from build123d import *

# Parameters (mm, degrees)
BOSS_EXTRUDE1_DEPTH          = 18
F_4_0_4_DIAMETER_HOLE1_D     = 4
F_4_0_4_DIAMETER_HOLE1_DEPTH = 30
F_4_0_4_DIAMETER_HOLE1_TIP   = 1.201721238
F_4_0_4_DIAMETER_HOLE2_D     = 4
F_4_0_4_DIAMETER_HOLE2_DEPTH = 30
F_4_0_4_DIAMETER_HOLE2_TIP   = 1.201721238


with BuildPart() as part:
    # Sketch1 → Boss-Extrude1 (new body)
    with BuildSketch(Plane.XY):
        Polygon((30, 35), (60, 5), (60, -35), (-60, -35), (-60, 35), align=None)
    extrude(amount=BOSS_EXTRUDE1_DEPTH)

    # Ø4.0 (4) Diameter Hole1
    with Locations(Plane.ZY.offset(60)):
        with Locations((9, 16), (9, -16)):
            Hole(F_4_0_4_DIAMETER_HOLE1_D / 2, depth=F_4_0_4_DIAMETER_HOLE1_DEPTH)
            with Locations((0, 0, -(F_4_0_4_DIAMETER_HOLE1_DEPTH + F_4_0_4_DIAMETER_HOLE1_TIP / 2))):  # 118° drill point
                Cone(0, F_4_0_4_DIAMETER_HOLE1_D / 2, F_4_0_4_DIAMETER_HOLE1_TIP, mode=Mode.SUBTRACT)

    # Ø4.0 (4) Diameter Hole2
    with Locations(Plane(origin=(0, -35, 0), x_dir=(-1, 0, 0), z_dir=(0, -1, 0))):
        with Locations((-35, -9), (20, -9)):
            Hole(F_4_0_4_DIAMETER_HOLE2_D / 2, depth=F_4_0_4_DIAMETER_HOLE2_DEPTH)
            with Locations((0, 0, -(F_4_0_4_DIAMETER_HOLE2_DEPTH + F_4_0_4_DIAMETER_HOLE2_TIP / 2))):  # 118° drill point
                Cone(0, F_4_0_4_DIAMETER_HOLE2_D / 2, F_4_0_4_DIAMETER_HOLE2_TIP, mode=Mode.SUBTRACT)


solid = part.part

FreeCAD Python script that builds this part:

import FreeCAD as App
import Part
import Sketcher


def add_polygon(sketch, points):
    """Adds a closed chain of lines whose ends are joined by coincident constraints."""
    first, n = sketch.GeometryCount, len(points)
    for a, b in zip(points, points[1:] + points[:1]):
        sketch.addGeometry(Part.LineSegment(App.Vector(*a, 0), App.Vector(*b, 0)), False)
    for i in range(n):
        sketch.addConstraint(Sketcher.Constraint("Coincident", first + i, 2, first + (i + 1) % n, 1))

doc = App.newDocument("Part")
body = doc.addObject("PartDesign::Body", "Body")

# Sketch on XY plane
sketch1 = doc.addObject("Sketcher::SketchObject", "Sketch")
body.addObject(sketch1)
sketch1.AttachmentSupport = (doc.XY_Plane, [""])
sketch1.MapMode = "FlatFace"
add_polygon(sketch1, [(60, 5), (30, 35), (-60, 35), (-60, -35), (60, -35)])  # lines 0-4
sketch1.addConstraint([
    Sketcher.Constraint("Horizontal", 1),
    Sketcher.Constraint("Vertical", 2),
    Sketcher.Constraint("Horizontal", 3),
    Sketcher.Constraint("Vertical", 4),
    Sketcher.Constraint("Symmetric", 1, 2, 3, 2, -1, 1),
    Sketcher.Constraint("DistanceX", 1, 2, 1, 1, 90.0),
    Sketcher.Constraint("DistanceX", 3, 1, 3, 2, 120.0),
    Sketcher.Constraint("DistanceY", 2, 2, 2, 1, 70.0),
    Sketcher.Constraint("DistanceY", 4, 1, 4, 2, 40.0),
])
pad1 = doc.addObject("PartDesign::Pad", "Pad")
body.addObject(pad1)
pad1.Profile = sketch1
pad1.Length = 18

# Sketch on YZ plane
sketch2 = doc.addObject("Sketcher::SketchObject", "Sketch001")
body.addObject(sketch2)
sketch2.AttachmentSupport = (doc.YZ_Plane, [""])
sketch2.MapMode = "FlatFace"
sketch2.AttachmentOffset = App.Placement(App.Vector(0, 0, -60), App.Rotation())
sketch2.addGeometry([
    Part.Circle(App.Vector(16, 9, 0), App.Vector(0, 0, 1), 2),
    Part.Circle(App.Vector(-16, 9, 0), App.Vector(0, 0, 1), 2),
], False)
sketch2.addConstraint([
    Sketcher.Constraint("Equal", 0, 1),
    Sketcher.Constraint("Symmetric", 0, 3, 1, 3, -2),
    Sketcher.Constraint("Diameter", 0, 4.0),
    Sketcher.Constraint("DistanceX", -1, 1, 0, 3, 16.0),
    Sketcher.Constraint("DistanceY", -1, 1, 0, 3, 9.0),
])
doc.recompute()
hole = doc.addObject("PartDesign::Hole", "Hole")
body.addObject(hole)
hole.Profile = sketch2
hole.ThreadType = "None"
hole.Diameter = 4
hole.DepthType = "Dimension"
hole.Depth = 30
hole.DrillPoint = "Angled"
hole.DrillPointAngle = 118
hole.Reversed = True

# Sketch on XZ plane
sketch3 = doc.addObject("Sketcher::SketchObject", "Sketch002")
body.addObject(sketch3)
sketch3.AttachmentSupport = (doc.XZ_Plane, [""])
sketch3.MapMode = "FlatFace"
sketch3.AttachmentOffset = App.Placement(App.Vector(0, 0, 35), App.Rotation())
sketch3.addGeometry([
    Part.Circle(App.Vector(35, 9, 0), App.Vector(0, 0, 1), 2),
    Part.Circle(App.Vector(-20, 9, 0), App.Vector(0, 0, 1), 2),
], False)
sketch3.addConstraint([
    Sketcher.Constraint("Equal", 0, 1),
    Sketcher.Constraint("Horizontal", 0, 3, 1, 3),
    Sketcher.Constraint("Diameter", 0, 4.0),
    Sketcher.Constraint("DistanceX", -1, 1, 0, 3, 35.0),
    Sketcher.Constraint("DistanceY", -1, 1, 0, 3, 9.0),
    Sketcher.Constraint("DistanceX", 1, 3, -1, 1, 20.0),
])
doc.recompute()
hole2 = doc.addObject("PartDesign::Hole", "Hole001")
body.addObject(hole2)
hole2.Profile = sketch3
hole2.ThreadType = "None"
hole2.Diameter = 4
hole2.DepthType = "Dimension"
hole2.Depth = 30
hole2.DrillPoint = "Angled"
hole2.DrillPointAngle = 118

doc.recompute()
